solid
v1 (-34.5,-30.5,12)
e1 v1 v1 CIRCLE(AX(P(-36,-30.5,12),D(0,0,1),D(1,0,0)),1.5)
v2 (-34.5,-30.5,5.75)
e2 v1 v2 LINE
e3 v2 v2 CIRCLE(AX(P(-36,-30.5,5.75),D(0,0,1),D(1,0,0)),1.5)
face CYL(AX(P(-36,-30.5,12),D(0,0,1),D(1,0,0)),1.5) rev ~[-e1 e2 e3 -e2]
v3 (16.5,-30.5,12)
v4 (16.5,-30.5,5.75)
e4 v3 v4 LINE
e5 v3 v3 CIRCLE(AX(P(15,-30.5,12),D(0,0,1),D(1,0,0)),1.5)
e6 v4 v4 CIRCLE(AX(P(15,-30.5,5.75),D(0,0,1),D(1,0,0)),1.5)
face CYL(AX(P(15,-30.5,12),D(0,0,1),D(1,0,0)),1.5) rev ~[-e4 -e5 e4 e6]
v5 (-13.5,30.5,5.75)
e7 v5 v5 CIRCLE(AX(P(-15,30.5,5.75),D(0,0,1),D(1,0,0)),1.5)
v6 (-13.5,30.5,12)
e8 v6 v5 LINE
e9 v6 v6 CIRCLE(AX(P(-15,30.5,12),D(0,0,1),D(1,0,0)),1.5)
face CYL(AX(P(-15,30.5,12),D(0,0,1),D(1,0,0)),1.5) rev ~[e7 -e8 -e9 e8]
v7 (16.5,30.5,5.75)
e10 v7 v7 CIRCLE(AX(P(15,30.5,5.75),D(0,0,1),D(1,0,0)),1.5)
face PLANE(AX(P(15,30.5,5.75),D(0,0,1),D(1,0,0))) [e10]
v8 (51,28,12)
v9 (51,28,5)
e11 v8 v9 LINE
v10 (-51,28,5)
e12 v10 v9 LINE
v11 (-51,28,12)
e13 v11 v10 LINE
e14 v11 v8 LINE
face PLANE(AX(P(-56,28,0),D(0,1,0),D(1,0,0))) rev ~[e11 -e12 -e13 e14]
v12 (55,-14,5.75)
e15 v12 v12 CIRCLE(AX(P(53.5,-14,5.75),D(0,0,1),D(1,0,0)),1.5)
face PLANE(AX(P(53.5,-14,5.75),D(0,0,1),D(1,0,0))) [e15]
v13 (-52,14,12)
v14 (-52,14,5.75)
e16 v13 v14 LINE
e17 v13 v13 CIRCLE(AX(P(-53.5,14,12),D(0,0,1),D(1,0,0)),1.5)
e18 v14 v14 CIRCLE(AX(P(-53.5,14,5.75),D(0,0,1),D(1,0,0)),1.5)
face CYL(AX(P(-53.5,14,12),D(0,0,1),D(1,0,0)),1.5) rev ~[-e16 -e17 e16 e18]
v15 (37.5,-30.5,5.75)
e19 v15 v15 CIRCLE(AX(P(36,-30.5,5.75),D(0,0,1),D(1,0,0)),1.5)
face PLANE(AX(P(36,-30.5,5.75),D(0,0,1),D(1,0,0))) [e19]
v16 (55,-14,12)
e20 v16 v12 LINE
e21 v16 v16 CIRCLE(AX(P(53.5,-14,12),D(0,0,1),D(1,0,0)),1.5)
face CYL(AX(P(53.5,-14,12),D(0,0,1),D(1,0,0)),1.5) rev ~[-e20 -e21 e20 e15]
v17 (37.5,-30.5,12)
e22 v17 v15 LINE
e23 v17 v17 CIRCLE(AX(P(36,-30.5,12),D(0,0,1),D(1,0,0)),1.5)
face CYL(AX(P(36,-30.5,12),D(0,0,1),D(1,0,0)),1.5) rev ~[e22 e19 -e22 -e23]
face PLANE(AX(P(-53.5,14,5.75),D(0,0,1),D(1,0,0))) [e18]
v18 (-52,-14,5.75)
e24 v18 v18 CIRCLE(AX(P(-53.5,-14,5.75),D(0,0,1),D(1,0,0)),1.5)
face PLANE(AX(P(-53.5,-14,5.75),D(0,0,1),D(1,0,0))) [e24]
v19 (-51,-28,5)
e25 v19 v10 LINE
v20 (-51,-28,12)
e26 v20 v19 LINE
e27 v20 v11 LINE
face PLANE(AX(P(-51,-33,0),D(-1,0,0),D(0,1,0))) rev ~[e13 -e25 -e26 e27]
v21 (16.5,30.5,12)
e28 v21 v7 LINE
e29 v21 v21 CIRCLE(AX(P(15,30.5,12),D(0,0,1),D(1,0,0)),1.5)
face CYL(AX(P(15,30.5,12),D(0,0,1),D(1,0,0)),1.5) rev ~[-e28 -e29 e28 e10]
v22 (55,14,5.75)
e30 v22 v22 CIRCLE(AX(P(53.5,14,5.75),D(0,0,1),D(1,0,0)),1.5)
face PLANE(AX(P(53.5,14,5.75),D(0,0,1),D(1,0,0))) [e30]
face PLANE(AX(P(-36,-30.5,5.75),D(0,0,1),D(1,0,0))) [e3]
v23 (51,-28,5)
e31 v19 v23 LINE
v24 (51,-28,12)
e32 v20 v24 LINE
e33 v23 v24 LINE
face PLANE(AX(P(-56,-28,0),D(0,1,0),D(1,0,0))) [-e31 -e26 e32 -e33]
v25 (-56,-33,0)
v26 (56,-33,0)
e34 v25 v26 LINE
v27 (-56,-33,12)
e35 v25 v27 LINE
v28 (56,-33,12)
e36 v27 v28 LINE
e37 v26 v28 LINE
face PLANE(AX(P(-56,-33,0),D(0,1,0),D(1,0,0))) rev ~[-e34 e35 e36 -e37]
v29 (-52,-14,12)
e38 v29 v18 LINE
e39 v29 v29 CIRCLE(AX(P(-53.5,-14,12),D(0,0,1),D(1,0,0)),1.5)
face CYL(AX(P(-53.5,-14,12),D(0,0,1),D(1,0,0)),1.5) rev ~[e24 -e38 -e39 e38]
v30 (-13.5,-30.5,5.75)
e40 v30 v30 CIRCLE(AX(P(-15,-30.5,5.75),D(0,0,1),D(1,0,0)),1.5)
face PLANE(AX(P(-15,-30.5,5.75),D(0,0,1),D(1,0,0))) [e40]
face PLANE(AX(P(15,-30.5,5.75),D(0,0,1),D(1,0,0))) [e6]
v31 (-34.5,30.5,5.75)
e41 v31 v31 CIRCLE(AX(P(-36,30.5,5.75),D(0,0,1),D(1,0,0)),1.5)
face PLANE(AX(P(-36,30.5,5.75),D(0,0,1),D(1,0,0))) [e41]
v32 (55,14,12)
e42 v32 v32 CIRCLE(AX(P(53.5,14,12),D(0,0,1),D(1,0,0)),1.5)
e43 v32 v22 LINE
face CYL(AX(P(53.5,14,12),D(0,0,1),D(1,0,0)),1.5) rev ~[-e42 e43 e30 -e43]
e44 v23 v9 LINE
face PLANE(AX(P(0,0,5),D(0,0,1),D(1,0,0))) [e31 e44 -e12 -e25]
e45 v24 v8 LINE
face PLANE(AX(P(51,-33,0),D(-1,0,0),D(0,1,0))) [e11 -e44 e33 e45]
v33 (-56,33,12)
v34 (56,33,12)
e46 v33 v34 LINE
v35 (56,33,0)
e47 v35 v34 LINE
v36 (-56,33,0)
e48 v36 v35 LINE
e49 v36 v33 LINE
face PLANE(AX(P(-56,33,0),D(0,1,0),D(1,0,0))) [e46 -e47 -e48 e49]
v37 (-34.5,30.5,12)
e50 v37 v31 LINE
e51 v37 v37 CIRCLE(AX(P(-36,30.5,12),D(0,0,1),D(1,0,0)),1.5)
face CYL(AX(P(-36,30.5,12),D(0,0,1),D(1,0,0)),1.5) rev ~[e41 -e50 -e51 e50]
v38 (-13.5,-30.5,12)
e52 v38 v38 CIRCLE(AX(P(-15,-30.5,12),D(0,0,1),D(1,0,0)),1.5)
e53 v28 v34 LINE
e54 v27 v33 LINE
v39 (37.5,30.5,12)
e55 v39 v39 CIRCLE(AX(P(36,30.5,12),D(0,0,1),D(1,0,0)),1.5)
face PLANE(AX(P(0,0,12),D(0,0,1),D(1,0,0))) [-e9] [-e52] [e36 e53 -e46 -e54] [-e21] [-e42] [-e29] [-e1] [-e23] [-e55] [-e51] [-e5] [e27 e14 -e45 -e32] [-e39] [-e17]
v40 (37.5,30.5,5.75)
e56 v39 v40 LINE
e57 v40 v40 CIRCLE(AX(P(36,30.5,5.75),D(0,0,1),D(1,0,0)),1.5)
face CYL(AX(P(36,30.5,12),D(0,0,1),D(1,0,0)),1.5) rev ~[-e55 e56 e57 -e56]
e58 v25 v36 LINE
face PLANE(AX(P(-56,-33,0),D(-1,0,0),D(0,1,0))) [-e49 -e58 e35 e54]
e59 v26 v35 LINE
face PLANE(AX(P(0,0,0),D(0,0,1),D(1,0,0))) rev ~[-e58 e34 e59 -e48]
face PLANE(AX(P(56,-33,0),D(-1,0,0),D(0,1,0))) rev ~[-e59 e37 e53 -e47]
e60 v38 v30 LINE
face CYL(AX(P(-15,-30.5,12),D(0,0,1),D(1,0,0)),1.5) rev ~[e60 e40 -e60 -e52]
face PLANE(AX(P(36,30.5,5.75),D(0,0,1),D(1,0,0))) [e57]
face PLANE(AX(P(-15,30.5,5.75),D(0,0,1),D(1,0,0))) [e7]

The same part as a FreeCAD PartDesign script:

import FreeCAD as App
import Part
import Sketcher
Q = App.Units.Quantity


def faces_at(feature, points):
    """Names of the faces that lie closest to the given points."""
    faces = feature.Shape.Faces
    near = lambda p: min(range(len(faces)), key=lambda i: faces[i].distToShape(Part.Vertex(*p))[0])
    return sorted({f"Face{near(p) + 1}" for p in points})


def add_polygon(sketch, points):
    """Adds a closed chain of lines whose ends are joined by coincident constraints."""
    first, n = sketch.GeometryCount, len(points)
    for a, b in zip(points, points[1:] + points[:1]):
        sketch.addGeometry(Part.LineSegment(App.Vector(*a, 0), App.Vector(*b, 0)), False)
    for i in range(n):
        sketch.addConstraint(Sketcher.Constraint("Coincident", first + i, 2, first + (i + 1) % n, 1))

doc = App.newDocument("Part")
params = doc.addObject("Spreadsheet::Sheet", "Params")
for row, (alias, value) in enumerate([
    ("sketch1_width", "112 mm"),
    ("sketch1_height", "66 mm"),
    ("pad1_length", "12 mm"),
    ("thickness_wall", "5 mm"),
    ("sketch2_diameter", "3 mm"),
    ("pocket1_length", "6.25 mm"),
], start=1):
    params.set(f"A{row}", alias)
    params.set(f"B{row}", "=" + value)
    params.setAlias(f"B{row}", alias)

body = doc.addObject("PartDesign::Body", "Body")

# Sketch on XY plane
sketch1 = body.newObject("Sketcher::SketchObject", "Sketch")
sketch1.AttachmentSupport = (doc.getObject("XY_Plane"), [""])
sketch1.MapMode = "FlatFace"
add_polygon(sketch1, [(-56, 33), (-56, -33), (56, -33), (56, 33)])  # lines 0-3
sketch1.addConstraint(Sketcher.Constraint("Vertical", 0))
sketch1.addConstraint(Sketcher.Constraint("Horizontal", 1))
sketch1.addConstraint(Sketcher.Constraint("Vertical", 2))
sketch1.addConstraint(Sketcher.Constraint("Horizontal", 3))
sketch1.addConstraint(Sketcher.Constraint("Symmetric", 0, 2, 2, 2, -1, 1))
sketch1.addConstraint(Sketcher.Constraint("DistanceX", 1, 1, 1, 2, Q("112 mm")))
sketch1.addConstraint(Sketcher.Constraint("DistanceY", 0, 2, 0, 1, Q("66 mm")))
sketch1.setExpression("Constraints[9]", "Params.sketch1_width")
sketch1.setExpression("Constraints[10]", "Params.sketch1_height")
pad1 = body.newObject("PartDesign::Pad", "Pad")
pad1.Profile = sketch1
pad1.setExpression("Length", "Params.pad1_length")
doc.recompute()

thickness = body.newObject("PartDesign::Thickness", "Thickness")
thickness.Base = (pad1, faces_at(pad1, [(0, 0, 12)]))
thickness.setExpression("Value", "Params.thickness_wall")
thickness.Reversed = True
thickness.Join = "Arc"

# Sketch on XY plane
sketch2 = body.newObject("Sketcher::SketchObject", "Sketch001")
sketch2.AttachmentSupport = (doc.getObject("XY_Plane"), [""])
sketch2.MapMode = "FlatFace"
sketch2.AttachmentOffset = App.Placement(App.Vector(0, 0, 12), App.Rotation())
sketch2.addGeometry(Part.Circle(App.Vector(-53.5, 14, 0), App.Vector(0, 0, 1), 1.5), False)
sketch2.addGeometry(Part.Circle(App.Vector(-53.5, -14, 0), App.Vector(0, 0, 1), 1.5), False)
sketch2.addGeometry(Part.Circle(App.Vector(-36, 30.5, 0), App.Vector(0, 0, 1), 1.5), False)
sketch2.addGeometry(Part.Circle(App.Vector(-15, 30.5, 0), App.Vector(0, 0, 1), 1.5), False)
sketch2.addGeometry(Part.Circle(App.Vector(15, 30.5, 0), App.Vector(0, 0, 1), 1.5), False)
sketch2.addGeometry(Part.Circle(App.Vector(36, 30.5, 0), App.Vector(0, 0, 1), 1.5), False)
sketch2.addGeometry(Part.Circle(App.Vector(53.5, 14, 0), App.Vector(0, 0, 1), 1.5), False)
sketch2.addGeometry(Part.Circle(App.Vector(53.5, -14, 0), App.Vector(0, 0, 1), 1.5), False)
sketch2.addGeometry(Part.Circle(App.Vector(36, -30.5, 0), App.Vector(0, 0, 1), 1.5), False)
sketch2.addGeometry(Part.Circle(App.Vector(15, -30.5, 0), App.Vector(0, 0, 1), 1.5), False)
sketch2.addGeometry(Part.Circle(App.Vector(-15, -30.5, 0), App.Vector(0, 0, 1), 1.5), False)
sketch2.addGeometry(Part.Circle(App.Vector(-36, -30.5, 0), App.Vector(0, 0, 1), 1.5), False)
sketch2.addConstraint(Sketcher.Constraint("Equal", 0, 1))
sketch2.addConstraint(Sketcher.Constraint("Equal", 1, 2))
sketch2.addConstraint(Sketcher.Constraint("Equal", 2, 3))
sketch2.addConstraint(Sketcher.Constraint("Equal", 3, 4))
sketch2.addConstraint(Sketcher.Constraint("Equal", 4, 5))
sketch2.addConstraint(Sketcher.Constraint("Equal", 5, 6))
sketch2.addConstraint(Sketcher.Constraint("Equal", 6, 7))
sketch2.addConstraint(Sketcher.Constraint("Equal", 7, 8))
sketch2.addConstraint(Sketcher.Constraint("Equal", 8, 9))
sketch2.addConstraint(Sketcher.Constraint("Equal", 9, 10))
sketch2.addConstraint(Sketcher.Constraint("Equal", 10, 11))
sketch2.addConstraint(Sketcher.Constraint("Symmetric", 1, 3, 6, 3, -1, 1))
sketch2.addConstraint(Sketcher.Constraint("Symmetric", 0, 3, 7, 3, -1, 1))
sketch2.addConstraint(Sketcher.Constraint("Symmetric", 2, 3, 8, 3, -1, 1))
sketch2.addConstraint(Sketcher.Constraint("Symmetric", 3, 3, 9, 3, -1, 1))
sketch2.addConstraint(Sketcher.Constraint("Symmetric", 4, 3, 10, 3, -1, 1))
sketch2.addConstraint(Sketcher.Constraint("Symmetric", 5, 3, 11, 3, -1, 1))
sketch2.addConstraint(Sketcher.Constraint("Symmetric", 3, 3, 4, 3, -2))
sketch2.addConstraint(Sketcher.Constraint("Symmetric", 2, 3, 5, 3, -2))
sketch2.addConstraint(Sketcher.Constraint("Symmetric", 0, 3, 6, 3, -2))
sketch2.addConstraint(Sketcher.Constraint("Horizontal", 2, 3, 3, 3))
sketch2.addConstraint(Sketcher.Constraint("Diameter", 0, Q("3 mm")))
sketch2.addConstraint(Sketcher.Constraint("DistanceY", -1, 1, 0, 3, Q("14 mm")))
sketch2.addConstraint(Sketcher.Constraint("DistanceX", 2, 3, -1, 1, Q("36 mm")))
sketch2.addConstraint(Sketcher.Constraint("DistanceX", 3, 3, -1, 1, Q("15 mm")))
sketch2.addConstraint(Sketcher.Constraint("DistanceX", 0, 3, 6, 3, Q("107 mm")))
sketch2.addConstraint(Sketcher.Constraint("DistanceY", 8, 3, 5, 3, Q("61 mm")))
sketch2.setExpression("Constraints[21]", "Params.sketch2_diameter")
pocket1 = body.newObject("PartDesign::Pocket", "Pocket")
pocket1.Profile = sketch2
pocket1.setExpression("Length", "Params.pocket1_length")

doc.recompute()
